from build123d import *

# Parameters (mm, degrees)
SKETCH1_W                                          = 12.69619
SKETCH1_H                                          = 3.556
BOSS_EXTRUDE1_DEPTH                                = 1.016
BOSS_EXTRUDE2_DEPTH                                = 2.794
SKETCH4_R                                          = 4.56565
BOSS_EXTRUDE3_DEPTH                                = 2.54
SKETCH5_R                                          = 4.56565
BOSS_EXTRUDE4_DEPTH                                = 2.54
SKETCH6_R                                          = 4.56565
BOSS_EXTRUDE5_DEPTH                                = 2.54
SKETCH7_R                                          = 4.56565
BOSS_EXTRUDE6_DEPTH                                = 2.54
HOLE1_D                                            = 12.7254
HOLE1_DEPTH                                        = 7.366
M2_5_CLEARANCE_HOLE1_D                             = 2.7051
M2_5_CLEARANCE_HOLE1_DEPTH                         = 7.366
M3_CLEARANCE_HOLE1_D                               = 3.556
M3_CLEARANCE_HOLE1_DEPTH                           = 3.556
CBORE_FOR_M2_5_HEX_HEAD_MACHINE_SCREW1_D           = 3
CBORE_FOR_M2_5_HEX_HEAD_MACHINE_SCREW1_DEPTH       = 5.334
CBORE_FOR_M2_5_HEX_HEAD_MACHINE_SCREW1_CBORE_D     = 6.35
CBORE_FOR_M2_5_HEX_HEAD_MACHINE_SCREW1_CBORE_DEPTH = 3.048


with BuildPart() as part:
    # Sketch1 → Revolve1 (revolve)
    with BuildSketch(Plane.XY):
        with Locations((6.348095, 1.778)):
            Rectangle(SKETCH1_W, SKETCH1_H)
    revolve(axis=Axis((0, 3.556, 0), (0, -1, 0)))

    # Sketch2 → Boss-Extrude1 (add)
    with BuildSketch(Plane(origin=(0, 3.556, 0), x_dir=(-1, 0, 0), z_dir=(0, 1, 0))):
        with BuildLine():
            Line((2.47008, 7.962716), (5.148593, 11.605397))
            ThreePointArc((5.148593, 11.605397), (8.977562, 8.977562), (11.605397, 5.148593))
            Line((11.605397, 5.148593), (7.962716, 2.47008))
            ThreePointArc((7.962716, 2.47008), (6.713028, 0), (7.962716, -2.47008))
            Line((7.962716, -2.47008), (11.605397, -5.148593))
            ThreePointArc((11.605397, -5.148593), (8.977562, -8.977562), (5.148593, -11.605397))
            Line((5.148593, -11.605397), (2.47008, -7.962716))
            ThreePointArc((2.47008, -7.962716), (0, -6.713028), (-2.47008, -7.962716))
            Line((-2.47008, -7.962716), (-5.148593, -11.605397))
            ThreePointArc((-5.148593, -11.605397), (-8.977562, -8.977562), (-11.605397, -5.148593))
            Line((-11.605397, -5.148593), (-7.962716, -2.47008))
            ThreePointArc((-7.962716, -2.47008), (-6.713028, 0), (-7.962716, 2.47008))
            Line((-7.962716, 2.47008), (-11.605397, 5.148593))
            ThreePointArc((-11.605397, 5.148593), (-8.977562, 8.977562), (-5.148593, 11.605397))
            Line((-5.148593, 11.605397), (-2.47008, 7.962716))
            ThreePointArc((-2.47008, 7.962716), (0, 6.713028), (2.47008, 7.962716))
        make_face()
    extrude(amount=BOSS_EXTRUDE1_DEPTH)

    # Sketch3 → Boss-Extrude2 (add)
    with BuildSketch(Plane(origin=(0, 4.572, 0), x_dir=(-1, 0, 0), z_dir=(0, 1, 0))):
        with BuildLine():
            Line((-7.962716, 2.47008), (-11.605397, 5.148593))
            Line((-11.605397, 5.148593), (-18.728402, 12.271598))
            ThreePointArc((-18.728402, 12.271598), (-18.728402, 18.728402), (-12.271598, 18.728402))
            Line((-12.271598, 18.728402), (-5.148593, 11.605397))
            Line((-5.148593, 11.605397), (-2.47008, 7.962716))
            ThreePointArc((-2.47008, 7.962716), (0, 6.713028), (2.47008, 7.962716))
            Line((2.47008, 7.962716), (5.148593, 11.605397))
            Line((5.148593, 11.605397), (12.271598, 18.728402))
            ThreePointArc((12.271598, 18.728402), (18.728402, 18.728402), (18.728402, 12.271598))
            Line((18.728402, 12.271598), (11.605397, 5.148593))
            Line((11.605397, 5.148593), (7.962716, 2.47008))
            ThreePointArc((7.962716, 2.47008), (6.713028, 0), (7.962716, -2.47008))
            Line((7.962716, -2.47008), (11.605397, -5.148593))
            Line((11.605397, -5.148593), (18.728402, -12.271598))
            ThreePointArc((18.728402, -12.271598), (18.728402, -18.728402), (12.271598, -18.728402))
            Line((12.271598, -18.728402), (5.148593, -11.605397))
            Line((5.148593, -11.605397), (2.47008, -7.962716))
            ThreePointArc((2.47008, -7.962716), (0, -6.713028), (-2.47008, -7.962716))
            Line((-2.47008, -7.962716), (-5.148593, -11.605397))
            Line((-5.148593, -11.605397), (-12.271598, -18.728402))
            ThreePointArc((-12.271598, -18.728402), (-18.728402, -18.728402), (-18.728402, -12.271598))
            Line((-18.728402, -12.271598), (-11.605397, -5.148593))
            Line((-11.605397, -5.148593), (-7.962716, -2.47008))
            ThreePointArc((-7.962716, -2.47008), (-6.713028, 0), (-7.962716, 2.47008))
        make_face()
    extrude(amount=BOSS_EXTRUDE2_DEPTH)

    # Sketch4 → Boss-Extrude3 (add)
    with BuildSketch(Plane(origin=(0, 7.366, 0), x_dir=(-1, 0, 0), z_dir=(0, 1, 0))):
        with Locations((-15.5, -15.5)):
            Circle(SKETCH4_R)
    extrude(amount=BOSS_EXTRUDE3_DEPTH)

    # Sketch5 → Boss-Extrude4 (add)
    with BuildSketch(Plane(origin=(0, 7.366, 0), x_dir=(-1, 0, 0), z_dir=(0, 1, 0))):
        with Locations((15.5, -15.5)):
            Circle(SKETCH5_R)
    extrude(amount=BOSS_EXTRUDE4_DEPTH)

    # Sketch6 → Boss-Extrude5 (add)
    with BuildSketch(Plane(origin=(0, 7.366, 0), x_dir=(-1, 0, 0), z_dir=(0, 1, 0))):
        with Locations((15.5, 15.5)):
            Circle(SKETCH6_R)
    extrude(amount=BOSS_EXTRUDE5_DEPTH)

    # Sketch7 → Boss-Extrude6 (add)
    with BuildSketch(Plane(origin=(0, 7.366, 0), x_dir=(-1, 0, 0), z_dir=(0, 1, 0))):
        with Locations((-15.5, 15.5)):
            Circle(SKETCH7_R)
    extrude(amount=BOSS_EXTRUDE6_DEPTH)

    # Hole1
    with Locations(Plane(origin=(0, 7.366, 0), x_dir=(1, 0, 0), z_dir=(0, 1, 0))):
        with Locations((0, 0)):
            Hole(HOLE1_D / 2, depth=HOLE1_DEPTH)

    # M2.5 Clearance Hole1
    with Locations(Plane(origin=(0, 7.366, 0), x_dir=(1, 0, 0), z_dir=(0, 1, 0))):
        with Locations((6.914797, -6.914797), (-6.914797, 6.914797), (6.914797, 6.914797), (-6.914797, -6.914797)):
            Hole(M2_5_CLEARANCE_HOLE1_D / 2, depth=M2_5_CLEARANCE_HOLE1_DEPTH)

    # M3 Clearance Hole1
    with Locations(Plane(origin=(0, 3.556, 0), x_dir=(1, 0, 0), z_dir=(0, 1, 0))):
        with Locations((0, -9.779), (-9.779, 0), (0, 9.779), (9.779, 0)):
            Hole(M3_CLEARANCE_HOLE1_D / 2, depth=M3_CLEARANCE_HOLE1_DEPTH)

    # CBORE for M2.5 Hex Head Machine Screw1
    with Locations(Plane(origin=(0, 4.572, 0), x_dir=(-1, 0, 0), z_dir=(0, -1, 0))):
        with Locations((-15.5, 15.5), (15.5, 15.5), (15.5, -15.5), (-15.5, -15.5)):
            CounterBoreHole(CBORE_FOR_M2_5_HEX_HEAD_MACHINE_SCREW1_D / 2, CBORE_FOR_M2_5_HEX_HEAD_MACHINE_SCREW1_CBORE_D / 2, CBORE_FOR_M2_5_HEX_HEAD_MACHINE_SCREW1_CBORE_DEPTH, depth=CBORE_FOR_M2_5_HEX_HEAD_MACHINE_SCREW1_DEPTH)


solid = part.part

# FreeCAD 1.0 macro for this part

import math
import FreeCAD as App
import Part
import Sketcher
from FreeCAD import Vector
Q = App.Units.Quantity

doc = App.newDocument("Part")
params = doc.addObject("Spreadsheet::Sheet", "Params")
for row, (alias, value) in enumerate([
    ("sketch1_height", "0.14 in"),
    ("revolution_angle", "360 deg"),
    ("pad1_length", "0.04 in"),
    ("pad2_length", "0.11 in"),
    ("pad3_length", "0.1 in"),
    ("pad4_length", "0.1 in"),
    ("pad5_length", "0.1 in"),
    ("pad6_length", "0.1 in"),
    ("sketch8_diameter", "0.501 in"),
    ("hole_diameter", "0.501 in"),
    ("hole_depth", "0.29 in"),
    ("hole2_diameter", "0.1065 in"),
    ("hole2_depth", "0.29 in"),
    ("sketch10_diameter", "0.14 in"),
    ("hole3_diameter", "0.14 in"),
    ("hole3_depth", "0.14 in"),
    ("hole4_diameter", "3 mm"),
    ("hole4_depth", "0.21 in"),
    ("hole4_cbore_diameter", "0.25 in"),
    ("hole4_cbore_depth", "0.12 in"),
], start=1):
    params.set(f"A{row}", alias)
    params.set(f"B{row}", "=" + value)
    params.setAlias(f"B{row}", alias)

body = doc.addObject("PartDesign::Body", "Body")

# Sketch on XY plane
sketch1 = body.newObject("Sketcher::SketchObject", "Sketch")
sketch1.AttachmentSupport = (doc.getObject("XY_Plane"), [""])
sketch1.MapMode = "FlatFace"
sketch1.addGeometry([
    Part.LineSegment(Vector(0, 3.6, 0), Vector(0, 0, 0)),
    Part.LineSegment(Vector(0, 0, 0), Vector(12.7, 0, 0)),
    Part.LineSegment(Vector(12.7, 0, 0), Vector(12.7, 3.6, 0)),
    Part.LineSegment(Vector(12.7, 3.6, 0), Vector(0, 3.6, 0)),
], False)
sketch1.addConstraint([
    Sketcher.Constraint("Coincident", 0, 2, 1, 1),
    Sketcher.Constraint("Coincident", 1, 2, 2, 1),
    Sketcher.Constraint("Coincident", 2, 2, 3, 1),
    Sketcher.Constraint("Coincident", 3, 2, 0, 1),
    Sketcher.Constraint("Vertical", 0),
    Sketcher.Constraint("Horizontal", 1),
    Sketcher.Constraint("Vertical", 2),
    Sketcher.Constraint("Horizontal", 3),
    Sketcher.Constraint("Coincident", 0, 2, -1, 1),
    Sketcher.Constraint("DistanceY", 0, 2, 0, 1, Q("0.14 in")),
    Sketcher.Constraint("DistanceX", 1, 1, 1, 2, 12.69619),
])
sketch1.setExpression("Constraints[9]", "Params.sketch1_height")
revolution = body.newObject("PartDesign::Revolution", "Revolution")
revolution.Profile = sketch1
revolution.ReferenceAxis = (sketch1, ["V_Axis"])
revolution.setExpression("Angle", "Params.revolution_angle")

# Sketch on XZ plane
sketch2 = body.newObject("Sketcher::SketchObject", "Sketch001")
sketch2.AttachmentSupport = (doc.getObject("XZ_Plane"), [""])
sketch2.MapMode = "FlatFace"
sketch2.AttachmentOffset = App.Placement(Vector(0, 0, -0.14 * 25.4), App.Rotation())
sketch2.addGeometry([
    Part.LineSegment(Vector(-5.1, 11.6, 0), Vector(-2.5, 8, 0)),  # 0
    Part.ArcOfCircle(Part.Circle(Vector(0, 9.8, 0), Vector(0, 0, 1), 3.1), math.radians(-144), math.radians(-36)),  # 1
    Part.LineSegment(Vector(2.5, 8, 0), Vector(5.1, 11.6, 0)),  # 2
    Part.ArcOfCircle(Part.Circle(Vector(0, 0, 0), Vector(0, 0, 1), 12.7), math.radians(24), math.radians(66)),  # 3
    Part.LineSegment(Vector(11.6, 5.1, 0), Vector(8, 2.5, 0)),  # 4
    Part.ArcOfCircle(Part.Circle(Vector(9.8, 0, 0), Vector(0, 0, 1), 3.1), math.radians(126), math.radians(234)),  # 5
    Part.LineSegment(Vector(8, -2.5, 0), Vector(11.6, -5.1, 0)),  # 6
    Part.ArcOfCircle(Part.Circle(Vector(0, 0, 0), Vector(0, 0, 1), 12.7), math.radians(-66), math.radians(-24)),  # 7
    Part.LineSegment(Vector(5.1, -11.6, 0), Vector(2.5, -8, 0)),  # 8
    Part.ArcOfCircle(Part.Circle(Vector(0, -9.8, 0), Vector(0, 0, 1), 3.1), math.radians(36), math.radians(144)),  # 9
    Part.LineSegment(Vector(-2.5, -8, 0), Vector(-5.1, -11.6, 0)),  # 10
    Part.ArcOfCircle(Part.Circle(Vector(0, 0, 0), Vector(0, 0, 1), 12.7), math.radians(-156), math.radians(-114)),  # 11
    Part.LineSegment(Vector(-11.6, -5.1, 0), Vector(-8, -2.5, 0)),  # 12
    Part.ArcOfCircle(Part.Circle(Vector(-9.8, 0, 0), Vector(0, 0, 1), 3.1), math.radians(-54), math.radians(54)),  # 13
    Part.LineSegment(Vector(-8, 2.5, 0), Vector(-11.6, 5.1, 0)),  # 14
    Part.ArcOfCircle(Part.Circle(Vector(0, 0, 0), Vector(0, 0, 1), 12.7), math.radians(114), math.radians(156)),  # 15
], False)
sketch2.addConstraint([
    Sketcher.Constraint("Tangent", 0, 2, 1, 1),
    Sketcher.Constraint("Tangent", 1, 2, 2, 1),
    Sketcher.Constraint("Coincident", 2, 2, 3, 2),
    Sketcher.Constraint("Coincident", 3, 1, 4, 1),
    Sketcher.Constraint("Tangent", 4, 2, 5, 1),
    Sketcher.Constraint("Tangent", 5, 2, 6, 1),
    Sketcher.Constraint("Coincident", 6, 2, 7, 2),
    Sketcher.Constraint("Coincident", 7, 1, 8, 1),
    Sketcher.Constraint("Tangent", 8, 2, 9, 1),
    Sketcher.Constraint("Tangent", 9, 2, 10, 1),
    Sketcher.Constraint("Coincident", 10, 2, 11, 2),
    Sketcher.Constraint("Coincident", 11, 1, 12, 1),
    Sketcher.Constraint("Tangent", 12, 2, 13, 1),
    Sketcher.Constraint("Tangent", 13, 2, 14, 1),
    Sketcher.Constraint("Coincident", 14, 2, 15, 2),
    Sketcher.Constraint("Coincident", 15, 1, 0, 1),
    Sketcher.Constraint("Coincident", 3, 3, -1, 1),
    Sketcher.Constraint("Coincident", 7, 3, -1, 1),
    Sketcher.Constraint("Coincident", 11, 3, -1, 1),
    Sketcher.Constraint("Coincident", 15, 3, -1, 1),
    Sketcher.Constraint("Equal", 1, 5),
    Sketcher.Constraint("Equal", 3, 7),
    Sketcher.Constraint("Equal", 5, 9),
    Sketcher.Constraint("Equal", 7, 11),
    Sketcher.Constraint("Equal", 9, 13),
    Sketcher.Constraint("Equal", 11, 15),
    Sketcher.Constraint("Symmetric", 1, 3, 9, 3, -1, 1),
    Sketcher.Constraint("Symmetric", 5, 3, 13, 3, -1, 1),
    Sketcher.Constraint("Symmetric", 0, 2, 1, 2, -2),
    Sketcher.Constraint("Symmetric", 5, 2, 12, 2, -2),
    Sketcher.Constraint("Perpendicular", 0, 4),
    Sketcher.Constraint("Perpendicular", 2, 6),
    Sketcher.Constraint("Perpendicular", 4, 8),
    Sketcher.Constraint("Perpendicular", 6, 10),
    Sketcher.Constraint("Perpendicular", 10, 14),
    Sketcher.Constraint("Equal", 2, 4),
    Sketcher.Constraint("DistanceY", 9, 3, 1, 3, Q("0.77 in")),
    Sketcher.Constraint("Radius", 1, 3.065971),
    Sketcher.Constraint("Radius", 3, 12.696196),
    Sketcher.Constraint("DistanceX", 0, 2, -1, 1, 2.47008),
])
pad1 = body.newObject("PartDesign::Pad", "Pad")
pad1.Profile = sketch2
pad1.setExpression("Length", "Params.pad1_length")
pad1.Reversed = True

# Sketch on XZ plane
sketch3 = body.newObject("Sketcher::SketchObject", "Sketch002")
sketch3.AttachmentSupport = (doc.getObject("XZ_Plane"), [""])
sketch3.MapMode = "FlatFace"
sketch3.AttachmentOffset = App.Placement(Vector(0, 0, -0.18 * 25.4), App.Rotation())
sketch3.addGeometry([
    Part.LineSegment(Vector(11.6, 5.1, 0), Vector(8, 2.5, 0)),  # 0
    Part.ArcOfCircle(Part.Circle(Vector(9.8, 0, 0), Vector(0, 0, 1), 3.1), math.radians(126), math.radians(234)),  # 1
    Part.LineSegment(Vector(8, -2.5, 0), Vector(11.6, -5.1, 0)),  # 2
    Part.LineSegment(Vector(11.6, -5.1, 0), Vector(18.7, -12.3, 0)),  # 3
    Part.ArcOfCircle(Part.Circle(Vector(15.5, -15.5, 0), Vector(0, 0, 1), 4.6), math.radians(-135), math.radians(45)),  # 4
    Part.LineSegment(Vector(12.3, -18.7, 0), Vector(5.1, -11.6, 0)),  # 5
    Part.LineSegment(Vector(5.1, -11.6, 0), Vector(2.5, -8, 0)),  # 6
    Part.ArcOfCircle(Part.Circle(Vector(0, -9.8, 0), Vector(0, 0, 1), 3.1), math.radians(36), math.radians(144)),  # 7
    Part.LineSegment(Vector(-2.5, -8, 0), Vector(-5.1, -11.6, 0)),  # 8
    Part.LineSegment(Vector(-5.1, -11.6, 0), Vector(-12.3, -18.7, 0)),  # 9
    Part.ArcOfCircle(Part.Circle(Vector(-15.5, -15.5, 0), Vector(0, 0, 1), 4.6), math.radians(135), math.radians(315)),  # 10
    Part.LineSegment(Vector(-18.7, -12.3, 0), Vector(-11.6, -5.1, 0)),  # 11
    Part.LineSegment(Vector(-11.6, -5.1, 0), Vector(-8, -2.5, 0)),  # 12
    Part.ArcOfCircle(Part.Circle(Vector(-9.8, 0, 0), Vector(0, 0, 1), 3.1), math.radians(-54), math.radians(54)),  # 13
    Part.LineSegment(Vector(-8, 2.5, 0), Vector(-11.6, 5.1, 0)),  # 14
    Part.LineSegment(Vector(-11.6, 5.1, 0), Vector(-18.7, 12.3, 0)),  # 15
    Part.ArcOfCircle(Part.Circle(Vector(-15.5, 15.5, 0), Vector(0, 0, 1), 4.6), math.radians(45), math.radians(225)),  # 16
    Part.LineSegment(Vector(-12.3, 18.7, 0), Vector(-5.1, 11.6, 0)),  # 17
    Part.LineSegment(Vector(-5.1, 11.6, 0), Vector(-2.5, 8, 0)),  # 18
    Part.ArcOfCircle(Part.Circle(Vector(0, 9.8, 0), Vector(0, 0, 1), 3.1), math.radians(-144), math.radians(-36)),  # 19
    Part.LineSegment(Vector(2.5, 8, 0), Vector(5.1, 11.6, 0)),  # 20
    Part.LineSegment(Vector(5.1, 11.6, 0), Vector(12.3, 18.7, 0)),  # 21
    Part.ArcOfCircle(Part.Circle(Vector(15.5, 15.5, 0), Vector(0, 0, 1), 4.6), math.radians(-45), math.radians(135)),  # 22
    Part.LineSegment(Vector(18.7, 12.3, 0), Vector(11.6, 5.1, 0)),  # 23
], False)
sketch3.addConstraint([
    Sketcher.Constraint("Tangent", 0, 2, 1, 1),
    Sketcher.Constraint("Tangent", 1, 2, 2, 1),
    Sketcher.Constraint("Coincident", 2, 2, 3, 1),
    Sketcher.Constraint("Tangent", 3, 2, 4, 2),
    Sketcher.Constraint("Tangent", 4, 1, 5, 1),
    Sketcher.Constraint("Coincident", 5, 2, 6, 1),
    Sketcher.Constraint("Tangent", 6, 2, 7, 1),
    Sketcher.Constraint("Tangent", 7, 2, 8, 1),
    Sketcher.Constraint("Coincident", 8, 2, 9, 1),
    Sketcher.Constraint("Tangent", 9, 2, 10, 2),
    Sketcher.Constraint("Tangent", 10, 1, 11, 1),
    Sketcher.Constraint("Coincident", 11, 2, 12, 1),
    Sketcher.Constraint("Tangent", 12, 2, 13, 1),
    Sketcher.Constraint("Tangent", 13, 2, 14, 1),
    Sketcher.Constraint("Coincident", 14, 2, 15, 1),
    Sketcher.Constraint("Tangent", 15, 2, 16, 2),
    Sketcher.Constraint("Tangent", 16, 1, 17, 1),
    Sketcher.Constraint("Coincident", 17, 2, 18, 1),
    Sketcher.Constraint("Tangent", 18, 2, 19, 1),
    Sketcher.Constraint("Tangent", 19, 2, 20, 1),
    Sketcher.Constraint("Coincident", 20, 2, 21, 1),
    Sketcher.Constraint("Tangent", 21, 2, 22, 2),
    Sketcher.Constraint("Tangent", 22, 1, 23, 1),
    Sketcher.Constraint("Coincident", 23, 2, 0, 1),
    Sketcher.Constraint("Equal", 1, 7),
    Sketcher.Constraint("Equal", 4, 10),
    Sketcher.Constraint("Equal", 7, 13),
    Sketcher.Constraint("Equal", 10, 16),
    Sketcher.Constraint("Equal", 13, 19),
    Sketcher.Constraint("Equal", 16, 22),
    Sketcher.Constraint("Symmetric", 1, 3, 13, 3, -1, 1),
    Sketcher.Constraint("Symmetric", 4, 3, 16, 3, -1, 1),
    Sketcher.Constraint("Symmetric", 7, 3, 19, 3, -1, 1),
    Sketcher.Constraint("Symmetric", 10, 3, 22, 3, -1, 1),
    Sketcher.Constraint("Symmetric", 2, 2, 14, 2, -1, 1),
    Sketcher.Constraint("Symmetric", 5, 2, 17, 2, -1, 1),
    Sketcher.Constraint("Symmetric", 8, 2, 20, 2, -1, 1),
    Sketcher.Constraint("Symmetric", 11, 2, 23, 2, -1, 1),
    Sketcher.Constraint("Symmetric", 4, 3, 10, 3, -2),
    Sketcher.Constraint("Symmetric", 6, 2, 7, 2, -2),
    Sketcher.Constraint("Symmetric", 2, 2, 11, 2, -2),
    Sketcher.Constraint("PointOnObject", 1, 3, -1),
    Sketcher.Constraint("Parallel", 3, 5),
    Sketcher.Constraint("Perpendicular", 0, 6),
    Sketcher.Constraint("Perpendicular", 5, 9),
    Sketcher.Constraint("Parallel", 9, 11),
    Sketcher.Constraint("Equal", 3, 5),
    Sketcher.Constraint("Equal", 2, 6),
    Sketcher.Constraint("DistanceX", 13, 3, 1, 3, Q("0.77 in")),
    Sketcher.Constraint("Radius", 1, 3.065971),
    Sketcher.Constraint("Radius", 4, 4.56565),
    Sketcher.Constraint("DistanceX", -1, 1, 4, 3, 15.5),
    Sketcher.Constraint("DistanceX", 2, 2, 4, 1, 0.666201),
])
pad2 = body.newObject("PartDesign::Pad", "Pad001")
pad2.Profile = sketch3
pad2.setExpression("Length", "Params.pad2_length")
pad2.Reversed = True

# Sketch on XZ plane
sketch4 = body.newObject("Sketcher::SketchObject", "Sketch003")
sketch4.AttachmentSupport = (doc.getObject("XZ_Plane"), [""])
sketch4.MapMode = "FlatFace"
sketch4.AttachmentOffset = App.Placement(Vector(0, 0, -0.29 * 25.4), App.Rotation())
sketch4.addGeometry(Part.Circle(Vector(15.5, -15.5, 0), Vector(0, 0, 1), 4.6), False)
sketch4.addConstraint([
    Sketcher.Constraint("Diameter", 0, Q("0.3595 in")),
    Sketcher.Constraint("DistanceX", -1, 1, 0, 3, 15.5),
    Sketcher.Constraint("DistanceY", 0, 3, -1, 1, 15.5),
])
pad3 = body.newObject("PartDesign::Pad", "Pad002")
pad3.Profile = sketch4
pad3.setExpression("Length", "Params.pad3_length")
pad3.Reversed = True

# Sketch on XZ plane
sketch5 = body.newObject("Sketcher::SketchObject", "Sketch004")
sketch5.AttachmentSupport = (doc.getObject("XZ_Plane"), [""])
sketch5.MapMode = "FlatFace"
sketch5.AttachmentOffset = App.Placement(Vector(0, 0, -0.29 * 25.4), App.Rotation())
sketch5.addGeometry(Part.Circle(Vector(-15.5, -15.5, 0), Vector(0, 0, 1), 4.6), False)
sketch5.addConstraint([
    Sketcher.Constraint("Diameter", 0, Q("0.3595 in")),
    Sketcher.Constraint("DistanceX", 0, 3, -1, 1, 15.5),
    Sketcher.Constraint("DistanceY", 0, 3, -1, 1, 15.5),
])
pad4 = body.newObject("PartDesign::Pad", "Pad003")
pad4.Profile = sketch5
pad4.setExpression("Length", "Params.pad4_length")
pad4.Reversed = True

# Sketch on XZ plane
sketch6 = body.newObject("Sketcher::SketchObject", "Sketch005")
sketch6.AttachmentSupport = (doc.getObject("XZ_Plane"), [""])
sketch6.MapMode = "FlatFace"
sketch6.AttachmentOffset = App.Placement(Vector(0, 0, -0.29 * 25.4), App.Rotation())
sketch6.addGeometry(Part.Circle(Vector(-15.5, 15.5, 0), Vector(0, 0, 1), 4.6), False)
sketch6.addConstraint([
    Sketcher.Constraint("Diameter", 0, Q("0.3595 in")),
    Sketcher.Constraint("DistanceX", 0, 3, -1, 1, 15.5),
    Sketcher.Constraint("DistanceY", -1, 1, 0, 3, 15.5),
])
pad5 = body.newObject("PartDesign::Pad", "Pad004")
pad5.Profile = sketch6
pad5.setExpression("Length", "Params.pad5_length")
pad5.Reversed = True

# Sketch on XZ plane
sketch7 = body.newObject("Sketcher::SketchObject", "Sketch006")
sketch7.AttachmentSupport = (doc.getObject("XZ_Plane"), [""])
sketch7.MapMode = "FlatFace"
sketch7.AttachmentOffset = App.Placement(Vector(0, 0, -0.29 * 25.4), App.Rotation())
sketch7.addGeometry(Part.Circle(Vector(15.5, 15.5, 0), Vector(0, 0, 1), 4.6), False)
sketch7.addConstraint([
    Sketcher.Constraint("Diameter", 0, Q("0.3595 in")),
    Sketcher.Constraint("DistanceX", -1, 1, 0, 3, 15.5),
    Sketcher.Constraint("DistanceY", -1, 1, 0, 3, 15.5),
])
pad6 = body.newObject("PartDesign::Pad", "Pad005")
pad6.Profile = sketch7
pad6.setExpression("Length", "Params.pad6_length")
pad6.Reversed = True

# Sketch on XZ plane
sketch8 = body.newObject("Sketcher::SketchObject", "Sketch007")
sketch8.AttachmentSupport = (doc.getObject("XZ_Plane"), [""])
sketch8.MapMode = "FlatFace"
sketch8.AttachmentOffset = App.Placement(Vector(0, 0, -0.29 * 25.4), App.Rotation())
sketch8.addGeometry(Part.Circle(Vector(0, 0, 0), Vector(0, 0, 1), 6), False)
sketch8.addConstraint([
    Sketcher.Constraint("Coincident", 0, 3, -1, 1),
    Sketcher.Constraint("Diameter", 0, Q("0.501 in")),
])
sketch8.setExpression("Constraints[1]", "Params.sketch8_diameter")
doc.recompute()
hole = body.newObject("PartDesign::Hole", "Hole")
hole.Profile = sketch8
hole.ThreadType = "None"
hole.setExpression("Diameter", "Params.hole_diameter")
hole.DepthType = "Dimension"
hole.setExpression("Depth", "Params.hole_depth")
hole.DrillPoint = "Flat"
hole.Reversed = True

# Sketch on XZ plane
sketch9 = body.newObject("Sketcher::SketchObject", "Sketch008")
sketch9.AttachmentSupport = (doc.getObject("XZ_Plane"), [""])
sketch9.MapMode = "FlatFace"
sketch9.AttachmentOffset = App.Placement(Vector(0, 0, -0.29 * 25.4), App.Rotation())
sketch9.addGeometry([
    Part.Circle(Vector(6.9, 6.9, 0), Vector(0, 0, 1), 1.4),
    Part.Circle(Vector(-6.9, -6.9, 0), Vector(0, 0, 1), 1.4),
    Part.Circle(Vector(6.9, -6.9, 0), Vector(0, 0, 1), 1.4),
    Part.Circle(Vector(-6.9, 6.9, 0), Vector(0, 0, 1), 1.4),
], False)
sketch9.addConstraint([
    Sketcher.Constraint("Equal", 0, 1),
    Sketcher.Constraint("Equal", 1, 2),
    Sketcher.Constraint("Equal", 2, 3),
    Sketcher.Constraint("Symmetric", 0, 3, 1, 3, -1, 1),
    Sketcher.Constraint("Symmetric", 2, 3, 3, 3, -1, 1),
    Sketcher.Constraint("Symmetric", 1, 3, 2, 3, -2),
    Sketcher.Constraint("Diameter", 0, Q("0.1065 in")),
    Sketcher.Constraint("DistanceX", -1, 1, 0, 3, 6.914797),
    Sketcher.Constraint("DistanceY", -1, 1, 0, 3, 6.914797),
])
doc.recompute()
hole2 = body.newObject("PartDesign::Hole", "Hole001")
hole2.Profile = sketch9
hole2.ThreadType = "None"
hole2.setExpression("Diameter", "Params.hole2_diameter")
hole2.DepthType = "Dimension"
hole2.setExpression("Depth", "Params.hole2_depth")
hole2.DrillPoint = "Flat"
hole2.Reversed = True

# Sketch on XZ plane
sketch10 = body.newObject("Sketcher::SketchObject", "Sketch009")
sketch10.AttachmentSupport = (doc.getObject("XZ_Plane"), [""])
sketch10.MapMode = "FlatFace"
sketch10.AttachmentOffset = App.Placement(Vector(0, 0, -0.14 * 25.4), App.Rotation())
sketch10.addGeometry([
    Part.Circle(Vector(0, 9.8, 0), Vector(0, 0, 1), 1.8),
    Part.Circle(Vector(-9.8, 0, 0), Vector(0, 0, 1), 1.8),
    Part.Circle(Vector(0, -9.8, 0), Vector(0, 0, 1), 1.8),
    Part.Circle(Vector(9.8, 0, 0), Vector(0, 0, 1), 1.8),
], False)
sketch10.addConstraint([
    Sketcher.Constraint("Equal", 0, 1),
    Sketcher.Constraint("Equal", 1, 2),
    Sketcher.Constraint("Equal", 2, 3),
    Sketcher.Constraint("Symmetric", 0, 3, 2, 3, -1, 1),
    Sketcher.Constraint("Symmetric", 1, 3, 3, 3, -1, 1),
    Sketcher.Constraint("PointOnObject", 0, 3, -2),
    Sketcher.Constraint("PointOnObject", 1, 3, -1),
    Sketcher.Constraint("Diameter", 0, Q("0.14 in")),
    Sketcher.Constraint("DistanceY", 2, 3, 0, 3, Q("0.77 in")),
    Sketcher.Constraint("DistanceX", 1, 3, 3, 3, Q("0.77 in")),
])
sketch10.setExpression("Constraints[7]", "Params.sketch10_diameter")
doc.recompute()
hole3 = body.newObject("PartDesign::Hole", "Hole002")
hole3.Profile = sketch10
hole3.ThreadType = "None"
hole3.setExpression("Diameter", "Params.hole3_diameter")
hole3.DepthType = "Dimension"
hole3.setExpression("Depth", "Params.hole3_depth")
hole3.DrillPoint = "Flat"
hole3.Reversed = True

# Sketch on XZ plane
sketch11 = body.newObject("Sketcher::SketchObject", "Sketch010")
sketch11.AttachmentSupport = (doc.getObject("XZ_Plane"), [""])
sketch11.MapMode = "FlatFace"
sketch11.AttachmentOffset = App.Placement(Vector(0, 0, -0.18 * 25.4), App.Rotation())
sketch11.addGeometry([
    Part.Circle(Vector(15.5, -15.5, 0), Vector(0, 0, 1), 1.5),
    Part.Circle(Vector(-15.5, -15.5, 0), Vector(0, 0, 1), 1.5),
    Part.Circle(Vector(-15.5, 15.5, 0), Vector(0, 0, 1), 1.5),
    Part.Circle(Vector(15.5, 15.5, 0), Vector(0, 0, 1), 1.5),
], False)
sketch11.addConstraint([
    Sketcher.Constraint("Equal", 0, 1),
    Sketcher.Constraint("Equal", 1, 2),
    Sketcher.Constraint("Equal", 2, 3),
    Sketcher.Constraint("Symmetric", 0, 3, 2, 3, -1, 1),
    Sketcher.Constraint("Symmetric", 1, 3, 3, 3, -1, 1),
    Sketcher.Constraint("Symmetric", 0, 3, 1, 3, -2),
    Sketcher.Constraint("Diameter", 0, 3.0),
    Sketcher.Constraint("DistanceX", -1, 1, 0, 3, 15.5),
    Sketcher.Constraint("DistanceY", 0, 3, -1, 1, 15.5),
])
doc.recompute()
hole4 = body.newObject("PartDesign::Hole", "Hole003")
hole4.Profile = sketch11
hole4.ThreadType = "None"
hole4.setExpression("Diameter", "Params.hole4_diameter")
hole4.DepthType = "Dimension"
hole4.setExpression("Depth", "Params.hole4_depth")
hole4.DrillPoint = "Flat"
hole4.HoleCutType = "Counterbore"
hole4.setExpression("HoleCutDiameter", "Params.hole4_cbore_diameter")
hole4.setExpression("HoleCutDepth", "Params.hole4_cbore_depth")

doc.recompute()
